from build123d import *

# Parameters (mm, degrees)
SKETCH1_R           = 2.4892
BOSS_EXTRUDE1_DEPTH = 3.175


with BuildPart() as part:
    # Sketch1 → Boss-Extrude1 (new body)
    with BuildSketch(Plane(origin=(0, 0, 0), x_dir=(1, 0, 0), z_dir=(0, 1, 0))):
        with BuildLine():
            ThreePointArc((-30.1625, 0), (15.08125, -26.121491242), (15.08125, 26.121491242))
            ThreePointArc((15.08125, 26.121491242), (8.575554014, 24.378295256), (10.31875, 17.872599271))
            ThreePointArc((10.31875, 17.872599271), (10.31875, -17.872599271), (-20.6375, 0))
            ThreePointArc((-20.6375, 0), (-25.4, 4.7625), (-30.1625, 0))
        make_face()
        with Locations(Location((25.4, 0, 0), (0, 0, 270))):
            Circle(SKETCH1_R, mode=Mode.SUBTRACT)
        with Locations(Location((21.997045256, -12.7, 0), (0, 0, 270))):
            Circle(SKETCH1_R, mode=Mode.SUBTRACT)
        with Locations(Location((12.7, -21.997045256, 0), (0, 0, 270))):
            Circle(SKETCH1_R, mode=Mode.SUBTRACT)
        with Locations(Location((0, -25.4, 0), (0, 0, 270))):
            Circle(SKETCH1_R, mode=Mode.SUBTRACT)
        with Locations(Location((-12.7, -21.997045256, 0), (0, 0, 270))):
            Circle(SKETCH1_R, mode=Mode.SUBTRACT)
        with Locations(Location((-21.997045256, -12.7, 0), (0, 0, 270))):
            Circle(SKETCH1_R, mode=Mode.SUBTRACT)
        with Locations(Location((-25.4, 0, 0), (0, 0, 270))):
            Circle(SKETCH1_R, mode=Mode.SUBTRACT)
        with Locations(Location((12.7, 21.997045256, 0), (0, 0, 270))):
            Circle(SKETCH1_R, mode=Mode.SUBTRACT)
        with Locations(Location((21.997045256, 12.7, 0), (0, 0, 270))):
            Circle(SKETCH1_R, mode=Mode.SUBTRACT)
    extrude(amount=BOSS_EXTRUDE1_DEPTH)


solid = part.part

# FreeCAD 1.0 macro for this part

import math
import FreeCAD as App
import Part
import Sketcher
from FreeCAD import Vector
Q = App.Units.Quantity

doc = App.newDocument("Part")
body = doc.addObject("PartDesign::Body", "Body")

# Sketch on XZ plane
sketch1 = doc.addObject("Sketcher::SketchObject", "Sketch")
body.addObject(sketch1)
sketch1.AttachmentSupport = (doc.XZ_Plane, [""])
sketch1.MapMode = "FlatFace"
sketch1.addGeometry([
    Part.ArcOfCircle(Part.Circle(Vector(0, 0, 0), Vector(0, 0, 1), 30.2), math.radians(-60), math.radians(180)),  # 0
    Part.ArcOfCircle(Part.Circle(Vector(12.7, -22, 0), Vector(0, 0, 1), 4.8), math.radians(120), math.radians(300)),  # 1
    Part.ArcOfCircle(Part.Circle(Vector(0, 0, 0), Vector(0, 0, 1), 20.6), math.radians(-60), math.radians(180)),  # 2
    Part.ArcOfCircle(Part.Circle(Vector(-25.4, 0, 0), Vector(0, 0, 1), 4.8), math.radians(180), math.radians(360)),  # 3
    Part.Circle(Vector(-12.7, 22, 0), Vector(0, 0, 1), 2.5),  # 4
    Part.Circle(Vector(0, 25.4, 0), Vector(0, 0, 1), 2.5),  # 5
    Part.Circle(Vector(-22, 12.7, 0), Vector(0, 0, 1), 2.5),  # 6
    Part.Circle(Vector(12.7, 22, 0), Vector(0, 0, 1), 2.5),  # 7
    Part.Circle(Vector(22, 12.7, 0), Vector(0, 0, 1), 2.5),  # 8
    Part.Circle(Vector(-25.4, 0, 0), Vector(0, 0, 1), 2.5),  # 9
    Part.Circle(Vector(25.4, 0, 0), Vector(0, 0, 1), 2.5),  # 10
    Part.Circle(Vector(12.7, -22, 0), Vector(0, 0, 1), 2.5),  # 11
    Part.Circle(Vector(22, -12.7, 0), Vector(0, 0, 1), 2.5),  # 12
], False)
sketch1.addConstraint([
    Sketcher.Constraint("Tangent", 0, 1, 1, 2),
    Sketcher.Constraint("Tangent", 1, 1, 2, 1),
    Sketcher.Constraint("Tangent", 2, 2, 3, 2),
    Sketcher.Constraint("Tangent", 3, 1, 0, 2),
    Sketcher.Constraint("Coincident", 0, 3, -1, 1),
    Sketcher.Constraint("Coincident", 2, 3, -1, 1),
    Sketcher.Constraint("Coincident", 9, 3, 3, 3),
    Sketcher.Constraint("Coincident", 11, 3, 1, 3),
    Sketcher.Constraint("Equal", 4, 5),
    Sketcher.Constraint("Equal", 5, 6),
    Sketcher.Constraint("Equal", 6, 7),
    Sketcher.Constraint("Equal", 7, 8),
    Sketcher.Constraint("Equal", 8, 9),
    Sketcher.Constraint("Equal", 9, 10),
    Sketcher.Constraint("Equal", 10, 11),
    Sketcher.Constraint("Equal", 11, 12),
    Sketcher.Constraint("Symmetric", 1, 3, 4, 3, -1, 1),
    Sketcher.Constraint("Symmetric", 3, 3, 10, 3, -1, 1),
    Sketcher.Constraint("Symmetric", 6, 3, 12, 3, -1, 1),
    Sketcher.Constraint("Symmetric", 4, 3, 7, 3, -2),
    Sketcher.Constraint("Symmetric", 6, 3, 8, 3, -2),
    Sketcher.Constraint("PointOnObject", 3, 3, -1),
    Sketcher.Constraint("PointOnObject", 5, 3, -2),
    Sketcher.Constraint("Diameter", 4, Q("0.196 in")),
    Sketcher.Constraint("DistanceX", 3, 3, -1, 1, Q("1 in")),
    Sketcher.Constraint("DistanceY", -1, 1, 5, 3, Q("1 in")),
    Sketcher.Constraint("Radius", 0, Q("1.1875 in")),
    Sketcher.Constraint("DistanceX", 4, 3, 1, 3, Q("1 in")),
    Sketcher.Constraint("DistanceY", -1, 1, 6, 3, Q("0.5 in")),
    Sketcher.Constraint("DistanceX", 6, 3, -1, 1, Q("21.997045 mm")),
])
pad1 = doc.addObject("PartDesign::Pad", "Pad")
body.addObject(pad1)
pad1.Profile = sketch1
pad1.Length = Q("0.125 in")
pad1.Reversed = True

doc.recompute()
